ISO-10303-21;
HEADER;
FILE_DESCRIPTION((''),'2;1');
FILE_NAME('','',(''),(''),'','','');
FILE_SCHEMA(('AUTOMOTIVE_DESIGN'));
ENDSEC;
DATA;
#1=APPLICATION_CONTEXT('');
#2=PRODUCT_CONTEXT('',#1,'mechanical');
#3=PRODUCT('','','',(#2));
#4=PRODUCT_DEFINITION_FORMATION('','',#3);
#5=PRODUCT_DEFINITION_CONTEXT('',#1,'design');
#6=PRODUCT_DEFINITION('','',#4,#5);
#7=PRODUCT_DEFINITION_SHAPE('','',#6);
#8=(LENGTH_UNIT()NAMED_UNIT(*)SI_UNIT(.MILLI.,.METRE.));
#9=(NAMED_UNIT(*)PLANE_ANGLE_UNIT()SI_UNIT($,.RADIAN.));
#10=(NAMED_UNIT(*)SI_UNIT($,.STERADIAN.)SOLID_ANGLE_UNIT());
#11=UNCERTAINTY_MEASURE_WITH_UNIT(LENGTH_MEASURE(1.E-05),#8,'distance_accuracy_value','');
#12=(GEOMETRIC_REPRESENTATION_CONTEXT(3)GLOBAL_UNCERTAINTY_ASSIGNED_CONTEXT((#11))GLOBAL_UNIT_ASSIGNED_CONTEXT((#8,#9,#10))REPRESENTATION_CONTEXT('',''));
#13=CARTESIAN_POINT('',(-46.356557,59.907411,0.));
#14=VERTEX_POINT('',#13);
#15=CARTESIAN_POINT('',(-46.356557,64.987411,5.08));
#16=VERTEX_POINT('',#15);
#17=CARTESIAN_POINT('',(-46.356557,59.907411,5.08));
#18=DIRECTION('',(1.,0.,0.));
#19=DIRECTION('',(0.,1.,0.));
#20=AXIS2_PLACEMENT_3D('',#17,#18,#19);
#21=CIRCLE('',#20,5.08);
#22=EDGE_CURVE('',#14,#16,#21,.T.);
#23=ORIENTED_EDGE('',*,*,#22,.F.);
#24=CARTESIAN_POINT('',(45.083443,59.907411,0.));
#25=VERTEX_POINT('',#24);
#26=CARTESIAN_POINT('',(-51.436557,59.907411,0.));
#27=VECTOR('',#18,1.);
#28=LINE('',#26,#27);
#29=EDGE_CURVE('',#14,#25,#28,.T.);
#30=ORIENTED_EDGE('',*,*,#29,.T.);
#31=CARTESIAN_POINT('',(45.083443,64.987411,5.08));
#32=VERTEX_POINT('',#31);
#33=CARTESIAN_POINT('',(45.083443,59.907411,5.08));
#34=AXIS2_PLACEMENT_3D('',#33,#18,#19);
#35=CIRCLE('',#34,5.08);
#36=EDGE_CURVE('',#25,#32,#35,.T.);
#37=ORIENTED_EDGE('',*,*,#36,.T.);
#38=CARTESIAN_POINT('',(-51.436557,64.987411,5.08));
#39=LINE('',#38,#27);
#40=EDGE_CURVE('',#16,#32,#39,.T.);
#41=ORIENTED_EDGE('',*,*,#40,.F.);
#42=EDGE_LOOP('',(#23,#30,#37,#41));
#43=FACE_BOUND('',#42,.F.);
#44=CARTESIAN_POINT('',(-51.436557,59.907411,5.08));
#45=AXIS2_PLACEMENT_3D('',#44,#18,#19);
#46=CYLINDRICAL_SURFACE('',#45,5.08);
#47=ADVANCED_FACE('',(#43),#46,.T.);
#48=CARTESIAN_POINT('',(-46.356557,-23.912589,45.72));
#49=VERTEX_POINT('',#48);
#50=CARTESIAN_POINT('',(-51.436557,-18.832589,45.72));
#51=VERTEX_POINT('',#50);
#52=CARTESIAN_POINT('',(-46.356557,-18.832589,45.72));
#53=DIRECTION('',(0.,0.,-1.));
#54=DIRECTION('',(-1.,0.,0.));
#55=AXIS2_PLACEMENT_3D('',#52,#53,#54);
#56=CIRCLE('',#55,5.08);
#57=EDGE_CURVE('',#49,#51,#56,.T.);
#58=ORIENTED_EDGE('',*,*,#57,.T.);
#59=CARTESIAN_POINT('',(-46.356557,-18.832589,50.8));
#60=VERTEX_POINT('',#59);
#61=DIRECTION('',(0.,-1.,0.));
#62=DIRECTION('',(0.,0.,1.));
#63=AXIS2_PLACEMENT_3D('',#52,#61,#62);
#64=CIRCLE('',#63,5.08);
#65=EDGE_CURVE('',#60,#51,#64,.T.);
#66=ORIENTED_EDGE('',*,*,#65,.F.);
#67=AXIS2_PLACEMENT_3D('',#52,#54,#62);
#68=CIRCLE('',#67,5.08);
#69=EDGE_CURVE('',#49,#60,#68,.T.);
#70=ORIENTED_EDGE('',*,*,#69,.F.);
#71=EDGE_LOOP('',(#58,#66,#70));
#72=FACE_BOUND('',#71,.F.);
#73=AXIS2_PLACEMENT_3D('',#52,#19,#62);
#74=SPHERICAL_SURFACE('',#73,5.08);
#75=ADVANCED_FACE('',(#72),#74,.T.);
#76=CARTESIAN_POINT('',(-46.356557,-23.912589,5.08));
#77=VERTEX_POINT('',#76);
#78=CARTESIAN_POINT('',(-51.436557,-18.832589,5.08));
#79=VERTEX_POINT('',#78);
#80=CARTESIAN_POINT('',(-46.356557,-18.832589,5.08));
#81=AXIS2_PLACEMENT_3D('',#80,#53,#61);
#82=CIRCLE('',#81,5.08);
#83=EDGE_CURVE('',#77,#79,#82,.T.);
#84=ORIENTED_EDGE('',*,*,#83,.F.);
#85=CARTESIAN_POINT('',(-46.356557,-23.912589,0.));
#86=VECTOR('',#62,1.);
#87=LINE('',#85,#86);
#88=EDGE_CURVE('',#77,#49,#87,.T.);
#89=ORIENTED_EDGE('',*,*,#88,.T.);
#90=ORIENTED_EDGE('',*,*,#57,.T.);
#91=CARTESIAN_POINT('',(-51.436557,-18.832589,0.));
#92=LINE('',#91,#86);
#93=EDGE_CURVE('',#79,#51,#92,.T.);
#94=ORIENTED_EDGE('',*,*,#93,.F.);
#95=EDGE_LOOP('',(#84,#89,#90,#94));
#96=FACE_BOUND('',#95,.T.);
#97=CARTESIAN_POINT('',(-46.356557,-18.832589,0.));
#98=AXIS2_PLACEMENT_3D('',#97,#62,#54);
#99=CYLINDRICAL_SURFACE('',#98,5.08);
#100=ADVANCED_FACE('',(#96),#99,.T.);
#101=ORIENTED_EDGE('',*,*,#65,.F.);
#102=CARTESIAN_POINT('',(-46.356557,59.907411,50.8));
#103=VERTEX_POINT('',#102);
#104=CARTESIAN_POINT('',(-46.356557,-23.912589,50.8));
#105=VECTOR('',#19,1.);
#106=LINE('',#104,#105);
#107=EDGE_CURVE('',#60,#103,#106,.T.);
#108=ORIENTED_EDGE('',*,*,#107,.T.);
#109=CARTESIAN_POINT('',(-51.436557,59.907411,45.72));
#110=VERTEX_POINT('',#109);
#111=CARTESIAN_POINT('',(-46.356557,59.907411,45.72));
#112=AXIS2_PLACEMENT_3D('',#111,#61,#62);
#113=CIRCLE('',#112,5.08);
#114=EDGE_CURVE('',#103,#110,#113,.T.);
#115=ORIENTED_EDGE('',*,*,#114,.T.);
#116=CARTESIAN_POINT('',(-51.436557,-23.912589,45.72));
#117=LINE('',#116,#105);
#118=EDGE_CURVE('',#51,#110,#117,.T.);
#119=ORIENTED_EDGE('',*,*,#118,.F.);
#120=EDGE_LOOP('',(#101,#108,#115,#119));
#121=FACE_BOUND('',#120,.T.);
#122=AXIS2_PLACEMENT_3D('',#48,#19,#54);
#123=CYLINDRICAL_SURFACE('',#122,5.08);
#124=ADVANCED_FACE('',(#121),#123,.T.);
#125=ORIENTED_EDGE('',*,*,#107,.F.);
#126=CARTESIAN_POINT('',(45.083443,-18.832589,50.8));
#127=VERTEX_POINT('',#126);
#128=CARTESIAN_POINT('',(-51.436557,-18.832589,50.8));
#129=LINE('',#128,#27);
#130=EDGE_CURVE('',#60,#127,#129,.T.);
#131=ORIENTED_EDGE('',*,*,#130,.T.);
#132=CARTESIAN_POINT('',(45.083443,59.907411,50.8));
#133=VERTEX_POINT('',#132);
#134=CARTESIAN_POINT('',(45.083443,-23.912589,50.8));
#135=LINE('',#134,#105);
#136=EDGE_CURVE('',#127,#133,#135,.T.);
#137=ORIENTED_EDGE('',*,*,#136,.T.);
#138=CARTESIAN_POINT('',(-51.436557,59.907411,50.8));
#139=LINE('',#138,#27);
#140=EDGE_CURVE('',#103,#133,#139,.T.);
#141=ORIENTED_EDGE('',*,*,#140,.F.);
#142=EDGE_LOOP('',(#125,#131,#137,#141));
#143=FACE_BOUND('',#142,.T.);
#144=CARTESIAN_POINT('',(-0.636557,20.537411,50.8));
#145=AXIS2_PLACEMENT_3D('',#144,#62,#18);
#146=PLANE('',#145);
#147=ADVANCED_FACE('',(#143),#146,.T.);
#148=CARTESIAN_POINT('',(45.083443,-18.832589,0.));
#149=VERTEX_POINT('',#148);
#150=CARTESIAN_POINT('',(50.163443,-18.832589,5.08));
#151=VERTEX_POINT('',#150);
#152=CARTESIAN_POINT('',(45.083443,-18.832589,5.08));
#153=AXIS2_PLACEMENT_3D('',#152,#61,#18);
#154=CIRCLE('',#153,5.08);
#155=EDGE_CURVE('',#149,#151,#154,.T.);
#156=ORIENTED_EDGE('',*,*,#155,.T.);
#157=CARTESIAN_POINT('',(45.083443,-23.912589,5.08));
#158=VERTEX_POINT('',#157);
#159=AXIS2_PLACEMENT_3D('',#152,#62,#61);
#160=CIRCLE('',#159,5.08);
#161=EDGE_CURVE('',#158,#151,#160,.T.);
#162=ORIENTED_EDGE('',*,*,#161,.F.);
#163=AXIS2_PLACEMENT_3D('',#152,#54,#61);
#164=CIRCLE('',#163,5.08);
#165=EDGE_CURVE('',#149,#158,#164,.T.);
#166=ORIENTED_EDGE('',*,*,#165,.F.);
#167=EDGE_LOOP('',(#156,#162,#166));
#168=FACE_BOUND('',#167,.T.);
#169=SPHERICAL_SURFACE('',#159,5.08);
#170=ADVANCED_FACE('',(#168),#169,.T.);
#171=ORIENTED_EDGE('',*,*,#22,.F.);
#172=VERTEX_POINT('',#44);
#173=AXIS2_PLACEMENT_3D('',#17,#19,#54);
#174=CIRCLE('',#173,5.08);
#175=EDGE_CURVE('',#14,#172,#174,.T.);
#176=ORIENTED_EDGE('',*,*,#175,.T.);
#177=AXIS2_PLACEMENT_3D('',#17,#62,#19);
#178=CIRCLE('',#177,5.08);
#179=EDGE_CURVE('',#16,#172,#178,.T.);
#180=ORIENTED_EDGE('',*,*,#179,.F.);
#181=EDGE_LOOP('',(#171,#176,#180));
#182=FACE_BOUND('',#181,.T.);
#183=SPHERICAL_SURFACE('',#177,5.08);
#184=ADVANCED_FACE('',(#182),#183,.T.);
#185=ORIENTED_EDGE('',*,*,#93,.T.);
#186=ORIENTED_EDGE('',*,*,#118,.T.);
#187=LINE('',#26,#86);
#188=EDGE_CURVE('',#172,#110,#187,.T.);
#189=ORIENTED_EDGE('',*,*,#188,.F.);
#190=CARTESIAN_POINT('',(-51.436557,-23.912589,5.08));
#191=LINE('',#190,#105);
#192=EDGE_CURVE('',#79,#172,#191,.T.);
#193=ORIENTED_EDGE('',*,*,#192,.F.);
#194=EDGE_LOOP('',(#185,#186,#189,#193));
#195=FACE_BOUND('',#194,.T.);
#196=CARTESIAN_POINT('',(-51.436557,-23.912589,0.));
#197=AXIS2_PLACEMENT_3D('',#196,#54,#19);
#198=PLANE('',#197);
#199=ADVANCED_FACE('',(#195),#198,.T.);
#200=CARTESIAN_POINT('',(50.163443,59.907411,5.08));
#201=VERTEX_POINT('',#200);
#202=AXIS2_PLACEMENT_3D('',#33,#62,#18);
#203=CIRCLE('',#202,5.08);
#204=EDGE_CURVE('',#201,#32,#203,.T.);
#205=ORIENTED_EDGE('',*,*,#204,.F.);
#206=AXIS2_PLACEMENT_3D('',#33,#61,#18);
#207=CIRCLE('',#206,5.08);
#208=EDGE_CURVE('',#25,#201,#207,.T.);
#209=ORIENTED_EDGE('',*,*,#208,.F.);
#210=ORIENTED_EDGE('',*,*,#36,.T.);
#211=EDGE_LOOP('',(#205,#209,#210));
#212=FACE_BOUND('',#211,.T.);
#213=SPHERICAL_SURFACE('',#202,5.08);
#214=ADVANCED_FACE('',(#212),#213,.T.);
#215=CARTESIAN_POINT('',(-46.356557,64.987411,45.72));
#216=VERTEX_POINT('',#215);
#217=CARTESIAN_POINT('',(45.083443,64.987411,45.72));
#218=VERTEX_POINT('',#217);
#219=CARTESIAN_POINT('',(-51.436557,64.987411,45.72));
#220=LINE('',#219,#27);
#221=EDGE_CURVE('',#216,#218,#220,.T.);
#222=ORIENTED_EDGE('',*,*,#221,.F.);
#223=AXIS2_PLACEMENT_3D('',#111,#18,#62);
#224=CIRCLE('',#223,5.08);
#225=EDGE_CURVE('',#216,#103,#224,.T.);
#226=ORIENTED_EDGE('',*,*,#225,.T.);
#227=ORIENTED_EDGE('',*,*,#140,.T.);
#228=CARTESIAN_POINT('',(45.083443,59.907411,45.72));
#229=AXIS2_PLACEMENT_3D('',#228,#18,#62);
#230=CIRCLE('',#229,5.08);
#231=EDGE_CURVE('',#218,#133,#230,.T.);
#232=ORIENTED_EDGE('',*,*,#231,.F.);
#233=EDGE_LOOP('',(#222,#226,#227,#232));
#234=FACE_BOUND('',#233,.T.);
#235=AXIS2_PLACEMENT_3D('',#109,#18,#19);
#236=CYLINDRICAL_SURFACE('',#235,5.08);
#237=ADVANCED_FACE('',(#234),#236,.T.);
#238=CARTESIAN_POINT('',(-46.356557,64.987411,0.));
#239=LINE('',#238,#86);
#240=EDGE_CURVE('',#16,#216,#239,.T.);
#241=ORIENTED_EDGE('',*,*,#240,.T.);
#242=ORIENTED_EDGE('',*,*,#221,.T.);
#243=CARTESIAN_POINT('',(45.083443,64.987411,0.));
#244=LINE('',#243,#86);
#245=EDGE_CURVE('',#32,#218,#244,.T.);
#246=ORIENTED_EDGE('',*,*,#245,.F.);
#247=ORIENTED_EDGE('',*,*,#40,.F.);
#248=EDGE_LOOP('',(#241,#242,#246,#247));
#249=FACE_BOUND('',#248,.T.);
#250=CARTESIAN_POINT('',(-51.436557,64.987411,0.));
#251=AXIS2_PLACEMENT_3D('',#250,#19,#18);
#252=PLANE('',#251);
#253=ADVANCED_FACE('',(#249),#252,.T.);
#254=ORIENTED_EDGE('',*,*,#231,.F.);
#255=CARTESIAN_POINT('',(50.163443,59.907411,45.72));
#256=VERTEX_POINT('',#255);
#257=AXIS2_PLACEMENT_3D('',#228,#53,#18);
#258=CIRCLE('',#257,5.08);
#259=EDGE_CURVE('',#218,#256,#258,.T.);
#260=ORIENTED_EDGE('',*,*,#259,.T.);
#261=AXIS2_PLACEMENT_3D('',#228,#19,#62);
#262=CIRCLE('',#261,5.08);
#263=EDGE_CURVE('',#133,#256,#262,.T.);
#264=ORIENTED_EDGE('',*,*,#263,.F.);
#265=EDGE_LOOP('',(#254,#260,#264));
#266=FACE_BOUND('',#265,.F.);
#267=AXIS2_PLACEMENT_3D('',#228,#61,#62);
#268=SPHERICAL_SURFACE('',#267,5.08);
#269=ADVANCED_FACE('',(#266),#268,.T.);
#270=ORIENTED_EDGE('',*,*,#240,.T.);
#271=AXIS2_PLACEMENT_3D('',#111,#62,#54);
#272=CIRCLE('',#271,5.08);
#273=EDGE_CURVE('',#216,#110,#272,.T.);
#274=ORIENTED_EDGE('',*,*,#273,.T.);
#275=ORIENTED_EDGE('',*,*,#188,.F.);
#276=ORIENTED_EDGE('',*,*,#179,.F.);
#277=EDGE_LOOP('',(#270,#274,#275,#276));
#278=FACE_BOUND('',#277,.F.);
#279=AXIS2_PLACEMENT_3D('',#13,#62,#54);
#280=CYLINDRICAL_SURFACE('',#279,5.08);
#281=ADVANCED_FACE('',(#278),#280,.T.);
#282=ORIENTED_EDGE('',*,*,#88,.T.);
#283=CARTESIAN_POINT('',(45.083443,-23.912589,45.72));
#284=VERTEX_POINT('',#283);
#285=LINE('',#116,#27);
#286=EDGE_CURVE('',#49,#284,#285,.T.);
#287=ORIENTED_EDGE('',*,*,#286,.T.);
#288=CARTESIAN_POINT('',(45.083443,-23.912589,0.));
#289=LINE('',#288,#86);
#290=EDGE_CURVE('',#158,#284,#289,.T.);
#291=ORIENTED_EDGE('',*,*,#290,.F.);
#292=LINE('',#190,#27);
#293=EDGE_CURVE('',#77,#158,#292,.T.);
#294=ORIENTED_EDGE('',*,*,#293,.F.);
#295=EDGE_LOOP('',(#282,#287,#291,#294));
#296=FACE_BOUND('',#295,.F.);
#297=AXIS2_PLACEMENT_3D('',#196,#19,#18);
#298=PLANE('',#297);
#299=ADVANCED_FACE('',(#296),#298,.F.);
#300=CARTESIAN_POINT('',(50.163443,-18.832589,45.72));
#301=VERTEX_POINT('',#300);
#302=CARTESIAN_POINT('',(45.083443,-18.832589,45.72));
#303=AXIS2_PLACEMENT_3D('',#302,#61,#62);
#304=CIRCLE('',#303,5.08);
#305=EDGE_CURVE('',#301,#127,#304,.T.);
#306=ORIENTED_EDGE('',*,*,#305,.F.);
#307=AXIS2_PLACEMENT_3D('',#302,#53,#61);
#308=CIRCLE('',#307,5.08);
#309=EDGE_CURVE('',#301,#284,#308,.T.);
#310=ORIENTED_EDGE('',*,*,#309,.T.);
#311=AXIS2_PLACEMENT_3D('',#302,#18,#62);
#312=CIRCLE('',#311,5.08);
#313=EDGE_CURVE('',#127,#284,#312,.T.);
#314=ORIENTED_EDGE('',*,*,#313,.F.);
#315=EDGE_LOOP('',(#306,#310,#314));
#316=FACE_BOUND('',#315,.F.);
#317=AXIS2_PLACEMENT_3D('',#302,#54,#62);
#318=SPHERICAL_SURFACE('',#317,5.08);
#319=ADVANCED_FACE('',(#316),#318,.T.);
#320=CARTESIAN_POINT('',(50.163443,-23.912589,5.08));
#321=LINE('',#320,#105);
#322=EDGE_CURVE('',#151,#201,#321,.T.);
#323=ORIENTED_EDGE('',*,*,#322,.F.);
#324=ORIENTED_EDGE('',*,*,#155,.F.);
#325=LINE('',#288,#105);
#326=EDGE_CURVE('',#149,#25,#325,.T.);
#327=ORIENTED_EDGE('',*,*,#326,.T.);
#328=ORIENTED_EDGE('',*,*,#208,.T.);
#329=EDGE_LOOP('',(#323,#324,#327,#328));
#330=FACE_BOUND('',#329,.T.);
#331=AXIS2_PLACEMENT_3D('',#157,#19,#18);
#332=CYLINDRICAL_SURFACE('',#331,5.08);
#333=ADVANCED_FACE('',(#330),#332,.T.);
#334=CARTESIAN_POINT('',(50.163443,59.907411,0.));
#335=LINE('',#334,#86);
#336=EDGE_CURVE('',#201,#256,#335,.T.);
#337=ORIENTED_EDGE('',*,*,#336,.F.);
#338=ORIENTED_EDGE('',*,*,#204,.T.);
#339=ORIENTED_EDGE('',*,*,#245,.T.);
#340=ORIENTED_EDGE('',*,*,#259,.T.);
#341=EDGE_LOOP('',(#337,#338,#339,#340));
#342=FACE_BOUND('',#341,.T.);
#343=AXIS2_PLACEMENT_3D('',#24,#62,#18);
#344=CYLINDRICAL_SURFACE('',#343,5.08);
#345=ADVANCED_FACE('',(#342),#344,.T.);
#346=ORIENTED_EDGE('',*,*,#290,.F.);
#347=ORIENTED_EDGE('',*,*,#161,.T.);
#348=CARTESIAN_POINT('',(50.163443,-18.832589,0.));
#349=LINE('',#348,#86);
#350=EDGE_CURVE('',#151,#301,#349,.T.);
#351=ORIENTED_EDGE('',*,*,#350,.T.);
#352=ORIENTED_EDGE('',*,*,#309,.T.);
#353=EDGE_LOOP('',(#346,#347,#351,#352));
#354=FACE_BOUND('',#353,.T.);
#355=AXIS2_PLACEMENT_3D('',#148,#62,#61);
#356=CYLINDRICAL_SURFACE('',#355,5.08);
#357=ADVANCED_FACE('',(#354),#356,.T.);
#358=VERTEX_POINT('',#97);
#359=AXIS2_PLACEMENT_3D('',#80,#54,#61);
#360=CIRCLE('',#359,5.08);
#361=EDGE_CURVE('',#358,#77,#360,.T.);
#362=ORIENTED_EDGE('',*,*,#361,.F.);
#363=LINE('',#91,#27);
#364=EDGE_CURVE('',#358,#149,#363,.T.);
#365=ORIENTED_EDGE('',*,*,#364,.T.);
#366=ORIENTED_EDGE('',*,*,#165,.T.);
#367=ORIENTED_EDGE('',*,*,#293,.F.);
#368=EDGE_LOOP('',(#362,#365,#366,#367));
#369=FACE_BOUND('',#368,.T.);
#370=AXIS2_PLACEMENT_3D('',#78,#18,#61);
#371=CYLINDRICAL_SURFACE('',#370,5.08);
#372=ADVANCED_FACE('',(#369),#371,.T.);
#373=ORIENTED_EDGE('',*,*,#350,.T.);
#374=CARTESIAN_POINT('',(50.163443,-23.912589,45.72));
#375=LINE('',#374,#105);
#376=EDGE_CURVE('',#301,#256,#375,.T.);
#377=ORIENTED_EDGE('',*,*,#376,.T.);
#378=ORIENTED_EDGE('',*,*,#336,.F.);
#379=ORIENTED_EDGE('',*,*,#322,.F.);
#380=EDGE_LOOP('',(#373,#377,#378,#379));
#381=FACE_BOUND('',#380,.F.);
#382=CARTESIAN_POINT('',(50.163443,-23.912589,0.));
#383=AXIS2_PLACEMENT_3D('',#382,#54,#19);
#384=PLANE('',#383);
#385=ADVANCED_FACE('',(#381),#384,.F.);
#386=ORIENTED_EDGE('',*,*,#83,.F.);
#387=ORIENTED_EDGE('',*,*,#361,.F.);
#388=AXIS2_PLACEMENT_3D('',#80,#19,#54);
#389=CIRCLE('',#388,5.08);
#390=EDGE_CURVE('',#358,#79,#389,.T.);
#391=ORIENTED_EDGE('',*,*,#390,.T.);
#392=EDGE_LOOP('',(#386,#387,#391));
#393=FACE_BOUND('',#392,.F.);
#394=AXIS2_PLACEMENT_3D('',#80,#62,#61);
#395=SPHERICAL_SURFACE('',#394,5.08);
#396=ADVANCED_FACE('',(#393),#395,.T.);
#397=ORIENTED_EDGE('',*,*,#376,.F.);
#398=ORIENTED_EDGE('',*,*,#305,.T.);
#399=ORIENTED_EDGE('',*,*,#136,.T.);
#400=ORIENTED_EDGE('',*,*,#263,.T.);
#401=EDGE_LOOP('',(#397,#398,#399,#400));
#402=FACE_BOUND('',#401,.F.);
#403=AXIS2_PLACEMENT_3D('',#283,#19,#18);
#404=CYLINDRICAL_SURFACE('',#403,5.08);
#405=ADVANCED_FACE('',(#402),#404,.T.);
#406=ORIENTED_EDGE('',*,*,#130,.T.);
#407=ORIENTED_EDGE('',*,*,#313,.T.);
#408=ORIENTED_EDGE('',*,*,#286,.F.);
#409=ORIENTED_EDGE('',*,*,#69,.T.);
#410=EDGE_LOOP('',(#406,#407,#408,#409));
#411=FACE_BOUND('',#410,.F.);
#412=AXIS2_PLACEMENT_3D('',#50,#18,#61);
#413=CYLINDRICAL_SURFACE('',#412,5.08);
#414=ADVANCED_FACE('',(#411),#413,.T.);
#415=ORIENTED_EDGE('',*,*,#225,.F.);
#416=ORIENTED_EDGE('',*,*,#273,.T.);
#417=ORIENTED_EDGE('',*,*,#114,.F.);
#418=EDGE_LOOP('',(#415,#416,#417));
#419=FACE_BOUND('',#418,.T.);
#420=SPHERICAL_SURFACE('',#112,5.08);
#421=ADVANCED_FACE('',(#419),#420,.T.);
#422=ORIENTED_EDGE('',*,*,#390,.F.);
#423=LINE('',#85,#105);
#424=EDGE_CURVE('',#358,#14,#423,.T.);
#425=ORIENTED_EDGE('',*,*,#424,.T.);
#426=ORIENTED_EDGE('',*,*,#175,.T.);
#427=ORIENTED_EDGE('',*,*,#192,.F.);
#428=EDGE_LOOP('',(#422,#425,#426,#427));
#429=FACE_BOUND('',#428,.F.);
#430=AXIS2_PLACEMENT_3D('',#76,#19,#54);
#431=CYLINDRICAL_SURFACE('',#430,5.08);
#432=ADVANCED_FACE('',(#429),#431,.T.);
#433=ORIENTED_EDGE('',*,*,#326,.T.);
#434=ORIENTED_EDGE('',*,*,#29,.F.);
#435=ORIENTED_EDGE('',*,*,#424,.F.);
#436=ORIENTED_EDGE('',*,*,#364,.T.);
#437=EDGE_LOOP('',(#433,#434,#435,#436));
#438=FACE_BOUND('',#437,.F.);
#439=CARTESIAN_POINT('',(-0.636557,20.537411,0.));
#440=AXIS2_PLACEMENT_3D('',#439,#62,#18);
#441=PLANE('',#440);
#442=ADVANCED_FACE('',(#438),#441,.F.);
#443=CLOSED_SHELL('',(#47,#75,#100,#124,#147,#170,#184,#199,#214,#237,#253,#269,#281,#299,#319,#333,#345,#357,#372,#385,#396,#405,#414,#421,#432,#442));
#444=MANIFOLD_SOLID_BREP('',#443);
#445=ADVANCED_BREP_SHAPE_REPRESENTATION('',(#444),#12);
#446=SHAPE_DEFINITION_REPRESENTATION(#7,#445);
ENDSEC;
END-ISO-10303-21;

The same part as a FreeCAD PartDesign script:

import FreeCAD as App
import Part
import Sketcher
Q = App.Units.Quantity


def add_polygon(sketch, points):
    """Adds a closed chain of lines whose ends are joined by coincident constraints."""
    first, n = sketch.GeometryCount, len(points)
    for a, b in zip(points, points[1:] + points[:1]):
        sketch.addGeometry(Part.LineSegment(App.Vector(*a, 0), App.Vector(*b, 0)), False)
    for i in range(n):
        sketch.addConstraint(Sketcher.Constraint("Coincident", first + i, 2, first + (i + 1) % n, 1))

doc = App.newDocument("Part")
body = doc.addObject("PartDesign::Body", "Body")

sketch1 = body.newObject("Sketcher::SketchObject", "Sketch")
sketch1.AttachmentSupport = (doc.getObject("XY_Plane"), [""])
sketch1.MapMode = "FlatFace"
add_polygon(sketch1, [(-51.436557, 64.987411), (-51.436557, -23.912589), (50.163443, -23.912589), (50.163443, 64.987411)])
sketch1.addConstraint([
    Sketcher.Constraint("Vertical", 0),
    Sketcher.Constraint("Horizontal", 1),
    Sketcher.Constraint("Vertical", 2),
    Sketcher.Constraint("Horizontal", 3),
    Sketcher.Constraint("DistanceX", 1, 1, 1, 2, Q("4 in")),
    Sketcher.Constraint("DistanceY", 0, 2, 0, 1, Q("3.5 in")),
    Sketcher.Constraint("DistanceY", 0, 2, -1, 1, 23.912589),
    Sketcher.Constraint("DistanceX", 0, 2, -1, 1, 51.436557),
])
pad1 = body.newObject("PartDesign::Pad", "Pad")
pad1.Profile = sketch1
pad1.Length = Q("2 in")
doc.recompute()

fillet = body.newObject("PartDesign::Fillet", "Fillet")
fillet.Base = (pad1, ["Edge1"])
fillet.UseAllEdges = True
fillet.Radius = Q("0.2 in")

doc.recompute()
